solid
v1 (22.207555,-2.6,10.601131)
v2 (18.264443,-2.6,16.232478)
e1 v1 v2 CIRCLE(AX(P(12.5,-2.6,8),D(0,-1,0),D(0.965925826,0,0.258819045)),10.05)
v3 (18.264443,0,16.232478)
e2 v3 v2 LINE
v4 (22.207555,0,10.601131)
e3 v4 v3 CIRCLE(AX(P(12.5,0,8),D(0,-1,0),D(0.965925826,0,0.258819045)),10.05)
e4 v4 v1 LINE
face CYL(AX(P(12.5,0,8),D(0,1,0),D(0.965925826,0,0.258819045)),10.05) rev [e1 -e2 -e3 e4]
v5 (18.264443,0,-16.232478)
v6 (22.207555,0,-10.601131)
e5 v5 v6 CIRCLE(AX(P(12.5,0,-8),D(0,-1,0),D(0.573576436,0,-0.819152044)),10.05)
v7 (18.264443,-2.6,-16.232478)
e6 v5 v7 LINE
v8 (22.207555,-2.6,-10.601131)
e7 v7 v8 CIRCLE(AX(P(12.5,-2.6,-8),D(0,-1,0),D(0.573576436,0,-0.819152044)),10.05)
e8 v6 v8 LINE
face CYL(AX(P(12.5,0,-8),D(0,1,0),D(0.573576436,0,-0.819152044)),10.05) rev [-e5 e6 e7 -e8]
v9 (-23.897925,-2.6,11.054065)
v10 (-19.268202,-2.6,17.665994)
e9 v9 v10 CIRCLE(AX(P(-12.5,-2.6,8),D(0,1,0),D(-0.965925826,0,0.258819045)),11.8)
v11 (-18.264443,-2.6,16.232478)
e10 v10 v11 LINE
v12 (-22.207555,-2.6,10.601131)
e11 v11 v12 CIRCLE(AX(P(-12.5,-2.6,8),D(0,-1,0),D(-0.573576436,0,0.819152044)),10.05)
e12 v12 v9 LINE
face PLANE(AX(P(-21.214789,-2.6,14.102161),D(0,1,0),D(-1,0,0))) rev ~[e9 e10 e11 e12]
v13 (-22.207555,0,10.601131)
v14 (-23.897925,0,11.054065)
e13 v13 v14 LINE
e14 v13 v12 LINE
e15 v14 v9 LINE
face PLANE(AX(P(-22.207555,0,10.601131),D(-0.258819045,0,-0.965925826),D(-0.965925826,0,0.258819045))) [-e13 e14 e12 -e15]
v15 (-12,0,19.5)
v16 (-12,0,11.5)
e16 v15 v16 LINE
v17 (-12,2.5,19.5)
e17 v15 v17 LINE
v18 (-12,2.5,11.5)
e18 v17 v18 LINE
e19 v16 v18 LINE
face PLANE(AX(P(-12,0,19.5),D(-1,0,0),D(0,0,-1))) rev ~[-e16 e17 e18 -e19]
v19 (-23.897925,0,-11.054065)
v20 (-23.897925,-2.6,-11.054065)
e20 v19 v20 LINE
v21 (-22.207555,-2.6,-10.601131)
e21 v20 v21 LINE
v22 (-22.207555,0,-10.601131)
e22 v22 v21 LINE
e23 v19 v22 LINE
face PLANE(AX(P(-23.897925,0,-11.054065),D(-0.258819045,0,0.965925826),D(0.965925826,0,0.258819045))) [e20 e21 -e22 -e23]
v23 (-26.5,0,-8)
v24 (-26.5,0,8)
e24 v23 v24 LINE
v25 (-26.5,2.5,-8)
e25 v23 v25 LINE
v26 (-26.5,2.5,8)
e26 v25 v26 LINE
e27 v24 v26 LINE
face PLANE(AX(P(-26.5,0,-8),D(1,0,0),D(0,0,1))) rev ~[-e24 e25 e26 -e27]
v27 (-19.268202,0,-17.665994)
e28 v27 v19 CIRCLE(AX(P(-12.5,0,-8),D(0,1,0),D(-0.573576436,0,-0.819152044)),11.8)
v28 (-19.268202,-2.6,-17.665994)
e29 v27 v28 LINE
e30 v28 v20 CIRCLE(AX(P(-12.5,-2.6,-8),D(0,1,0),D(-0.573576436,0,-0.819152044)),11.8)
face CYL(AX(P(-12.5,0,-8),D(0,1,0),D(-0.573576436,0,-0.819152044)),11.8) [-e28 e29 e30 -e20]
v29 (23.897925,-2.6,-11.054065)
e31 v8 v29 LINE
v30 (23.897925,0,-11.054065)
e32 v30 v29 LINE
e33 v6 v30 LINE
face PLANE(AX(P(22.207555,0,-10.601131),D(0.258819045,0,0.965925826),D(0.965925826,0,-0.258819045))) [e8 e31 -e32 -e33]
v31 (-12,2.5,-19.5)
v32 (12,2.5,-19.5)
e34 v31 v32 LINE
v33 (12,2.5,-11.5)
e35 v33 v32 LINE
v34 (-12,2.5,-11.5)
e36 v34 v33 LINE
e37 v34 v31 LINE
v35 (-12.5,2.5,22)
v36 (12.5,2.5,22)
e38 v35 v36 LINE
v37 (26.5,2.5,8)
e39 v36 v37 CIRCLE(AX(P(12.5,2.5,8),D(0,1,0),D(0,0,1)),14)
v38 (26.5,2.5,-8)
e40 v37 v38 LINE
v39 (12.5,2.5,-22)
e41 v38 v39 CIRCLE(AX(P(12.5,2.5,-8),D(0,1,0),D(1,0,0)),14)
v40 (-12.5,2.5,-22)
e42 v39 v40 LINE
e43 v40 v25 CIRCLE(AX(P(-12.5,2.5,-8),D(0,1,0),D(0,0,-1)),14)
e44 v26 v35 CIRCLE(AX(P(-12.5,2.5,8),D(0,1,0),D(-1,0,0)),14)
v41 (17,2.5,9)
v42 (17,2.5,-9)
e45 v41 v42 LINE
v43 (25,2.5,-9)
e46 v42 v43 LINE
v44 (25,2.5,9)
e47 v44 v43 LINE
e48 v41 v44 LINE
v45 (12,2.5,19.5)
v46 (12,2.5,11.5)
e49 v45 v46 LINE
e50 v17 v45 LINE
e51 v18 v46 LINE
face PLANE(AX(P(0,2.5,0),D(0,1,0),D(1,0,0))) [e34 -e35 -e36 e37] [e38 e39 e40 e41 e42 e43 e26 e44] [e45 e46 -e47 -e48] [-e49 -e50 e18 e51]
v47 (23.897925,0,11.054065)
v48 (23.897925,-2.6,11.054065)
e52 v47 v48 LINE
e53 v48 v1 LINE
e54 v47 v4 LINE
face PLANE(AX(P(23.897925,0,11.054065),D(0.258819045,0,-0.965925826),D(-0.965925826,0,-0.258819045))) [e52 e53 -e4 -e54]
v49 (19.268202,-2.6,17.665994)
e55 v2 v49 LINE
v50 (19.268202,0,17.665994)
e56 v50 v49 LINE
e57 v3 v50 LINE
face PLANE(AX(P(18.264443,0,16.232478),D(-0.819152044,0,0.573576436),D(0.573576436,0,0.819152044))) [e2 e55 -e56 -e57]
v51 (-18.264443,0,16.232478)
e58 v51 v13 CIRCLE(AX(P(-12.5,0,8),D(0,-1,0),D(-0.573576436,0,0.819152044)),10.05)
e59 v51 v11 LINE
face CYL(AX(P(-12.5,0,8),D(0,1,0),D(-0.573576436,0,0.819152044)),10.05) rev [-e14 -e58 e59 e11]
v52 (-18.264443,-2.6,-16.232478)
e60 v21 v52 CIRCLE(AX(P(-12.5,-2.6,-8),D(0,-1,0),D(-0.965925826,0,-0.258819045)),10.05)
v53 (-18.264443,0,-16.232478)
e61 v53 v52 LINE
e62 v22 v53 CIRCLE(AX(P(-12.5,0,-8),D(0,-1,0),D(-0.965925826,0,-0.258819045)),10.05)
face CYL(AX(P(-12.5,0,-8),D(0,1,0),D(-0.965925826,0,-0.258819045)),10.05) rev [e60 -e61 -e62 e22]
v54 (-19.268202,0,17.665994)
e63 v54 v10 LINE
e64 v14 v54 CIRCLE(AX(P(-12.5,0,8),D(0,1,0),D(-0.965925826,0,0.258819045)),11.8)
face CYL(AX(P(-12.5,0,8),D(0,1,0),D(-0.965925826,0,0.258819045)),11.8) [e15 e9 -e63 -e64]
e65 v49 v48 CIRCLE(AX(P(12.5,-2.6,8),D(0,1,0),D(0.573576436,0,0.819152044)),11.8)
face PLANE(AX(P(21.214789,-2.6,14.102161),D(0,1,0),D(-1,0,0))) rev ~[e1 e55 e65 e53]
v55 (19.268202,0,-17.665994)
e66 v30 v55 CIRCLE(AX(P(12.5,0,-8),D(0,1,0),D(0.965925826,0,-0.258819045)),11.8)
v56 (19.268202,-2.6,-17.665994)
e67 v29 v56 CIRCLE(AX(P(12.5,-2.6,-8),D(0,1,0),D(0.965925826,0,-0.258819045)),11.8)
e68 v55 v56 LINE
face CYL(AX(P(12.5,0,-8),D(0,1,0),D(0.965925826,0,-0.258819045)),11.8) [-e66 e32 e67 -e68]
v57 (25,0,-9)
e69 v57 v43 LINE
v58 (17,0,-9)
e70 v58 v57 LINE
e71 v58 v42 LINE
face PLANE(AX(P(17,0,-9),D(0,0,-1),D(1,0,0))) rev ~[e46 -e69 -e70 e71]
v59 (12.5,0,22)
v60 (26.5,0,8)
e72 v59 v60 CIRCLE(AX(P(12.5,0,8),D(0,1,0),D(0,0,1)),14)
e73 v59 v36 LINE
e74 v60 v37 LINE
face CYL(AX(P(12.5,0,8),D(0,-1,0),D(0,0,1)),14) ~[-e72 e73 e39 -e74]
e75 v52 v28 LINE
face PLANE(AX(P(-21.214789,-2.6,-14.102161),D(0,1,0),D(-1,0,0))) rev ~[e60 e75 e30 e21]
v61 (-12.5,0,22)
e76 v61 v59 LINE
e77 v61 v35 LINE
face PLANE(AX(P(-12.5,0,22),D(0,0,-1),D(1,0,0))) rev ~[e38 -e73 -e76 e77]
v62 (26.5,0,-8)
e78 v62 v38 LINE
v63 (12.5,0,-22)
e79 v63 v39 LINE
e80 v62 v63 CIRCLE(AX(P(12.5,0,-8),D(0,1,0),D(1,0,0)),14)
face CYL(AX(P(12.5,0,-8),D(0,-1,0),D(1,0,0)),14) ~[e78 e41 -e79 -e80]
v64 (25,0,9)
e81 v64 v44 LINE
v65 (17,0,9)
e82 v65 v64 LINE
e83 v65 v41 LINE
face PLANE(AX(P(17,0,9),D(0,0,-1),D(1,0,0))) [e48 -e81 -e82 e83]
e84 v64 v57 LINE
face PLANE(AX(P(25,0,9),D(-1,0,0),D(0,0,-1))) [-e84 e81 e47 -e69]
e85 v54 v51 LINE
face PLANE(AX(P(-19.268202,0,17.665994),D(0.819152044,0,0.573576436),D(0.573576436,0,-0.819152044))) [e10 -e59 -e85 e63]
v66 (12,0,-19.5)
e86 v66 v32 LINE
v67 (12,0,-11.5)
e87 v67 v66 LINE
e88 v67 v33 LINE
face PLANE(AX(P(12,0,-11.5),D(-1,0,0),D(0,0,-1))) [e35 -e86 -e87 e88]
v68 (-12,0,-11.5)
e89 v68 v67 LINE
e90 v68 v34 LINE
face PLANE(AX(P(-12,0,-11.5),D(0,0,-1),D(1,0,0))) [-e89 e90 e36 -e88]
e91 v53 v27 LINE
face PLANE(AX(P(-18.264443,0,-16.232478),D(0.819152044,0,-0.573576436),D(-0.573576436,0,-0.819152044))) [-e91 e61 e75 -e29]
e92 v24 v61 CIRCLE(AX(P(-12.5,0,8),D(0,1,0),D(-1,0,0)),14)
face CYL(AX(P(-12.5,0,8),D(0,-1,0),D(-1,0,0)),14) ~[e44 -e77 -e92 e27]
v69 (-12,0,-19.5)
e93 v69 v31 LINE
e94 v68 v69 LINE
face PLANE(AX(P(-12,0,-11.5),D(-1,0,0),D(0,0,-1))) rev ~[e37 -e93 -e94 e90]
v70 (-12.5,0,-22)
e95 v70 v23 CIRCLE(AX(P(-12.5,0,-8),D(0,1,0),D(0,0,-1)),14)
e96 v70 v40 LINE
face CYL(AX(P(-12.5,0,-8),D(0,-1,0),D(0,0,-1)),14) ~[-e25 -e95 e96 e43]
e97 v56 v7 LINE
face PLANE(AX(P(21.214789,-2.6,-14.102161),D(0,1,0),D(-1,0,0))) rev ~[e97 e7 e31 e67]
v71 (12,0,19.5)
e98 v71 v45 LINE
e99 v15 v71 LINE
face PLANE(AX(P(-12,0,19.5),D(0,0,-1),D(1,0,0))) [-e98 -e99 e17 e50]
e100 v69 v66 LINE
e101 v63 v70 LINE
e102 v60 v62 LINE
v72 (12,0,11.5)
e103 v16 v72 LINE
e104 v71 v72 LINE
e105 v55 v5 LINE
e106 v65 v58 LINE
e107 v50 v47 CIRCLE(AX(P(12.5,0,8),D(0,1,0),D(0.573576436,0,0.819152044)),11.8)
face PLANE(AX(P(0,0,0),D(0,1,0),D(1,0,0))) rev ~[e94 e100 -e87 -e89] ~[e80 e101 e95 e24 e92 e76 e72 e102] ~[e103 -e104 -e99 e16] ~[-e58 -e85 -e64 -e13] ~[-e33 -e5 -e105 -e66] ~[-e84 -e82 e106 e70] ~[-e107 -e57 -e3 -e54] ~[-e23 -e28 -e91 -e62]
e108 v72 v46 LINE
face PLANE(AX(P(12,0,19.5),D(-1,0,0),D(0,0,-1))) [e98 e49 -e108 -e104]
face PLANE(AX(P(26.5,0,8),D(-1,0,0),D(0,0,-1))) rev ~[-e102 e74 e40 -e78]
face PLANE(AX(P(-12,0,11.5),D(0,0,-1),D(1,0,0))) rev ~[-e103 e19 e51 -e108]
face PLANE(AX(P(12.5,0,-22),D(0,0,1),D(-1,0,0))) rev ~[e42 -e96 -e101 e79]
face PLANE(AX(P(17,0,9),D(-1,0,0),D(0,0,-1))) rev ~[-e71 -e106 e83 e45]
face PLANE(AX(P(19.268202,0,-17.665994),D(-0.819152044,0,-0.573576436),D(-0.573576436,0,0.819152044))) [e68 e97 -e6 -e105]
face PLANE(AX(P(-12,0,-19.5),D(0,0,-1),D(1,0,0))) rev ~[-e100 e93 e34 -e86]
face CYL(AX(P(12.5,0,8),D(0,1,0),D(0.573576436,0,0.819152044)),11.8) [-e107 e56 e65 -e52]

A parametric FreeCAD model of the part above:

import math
import FreeCAD as App
import Part
import Sketcher
Q = App.Units.Quantity


def add_polygon(sketch, points):
    """Adds a closed chain of lines whose ends are joined by coincident constraints."""
    first, n = sketch.GeometryCount, len(points)
    for a, b in zip(points, points[1:] + points[:1]):
        sketch.addGeometry(Part.LineSegment(App.Vector(*a, 0), App.Vector(*b, 0)), False)
    for i in range(n):
        sketch.addConstraint(Sketcher.Constraint("Coincident", first + i, 2, first + (i + 1) % n, 1))

doc = App.newDocument("Part")
body = doc.addObject("PartDesign::Body", "Body")

# Sketch on XZ plane
sketch1 = body.newObject("Sketcher::SketchObject", "Sketch")
sketch1.AttachmentSupport = (doc.getObject("XZ_Plane"), [""])
sketch1.MapMode = "FlatFace"
sketch1.addGeometry(Part.LineSegment(App.Vector(-26.5, -8, 0), App.Vector(-26.5, 8, 0)), False)  # 0
sketch1.addGeometry(Part.ArcOfCircle(Part.Circle(App.Vector(-12.5, 8, 0), App.Vector(0, 0, 1), 14), math.radians(90), math.radians(180)), False)  # 1
sketch1.addGeometry(Part.LineSegment(App.Vector(-12.5, 22, 0), App.Vector(12.5, 22, 0)), False)  # 2
sketch1.addGeometry(Part.ArcOfCircle(Part.Circle(App.Vector(12.5, 8, 0), App.Vector(0, 0, 1), 14), math.radians(0), math.radians(90)), False)  # 3
sketch1.addGeometry(Part.LineSegment(App.Vector(26.5, 8, 0), App.Vector(26.5, -8, 0)), False)  # 4
sketch1.addGeometry(Part.ArcOfCircle(Part.Circle(App.Vector(12.5, -8, 0), App.Vector(0, 0, 1), 14), math.radians(-90), math.radians(0)), False)  # 5
sketch1.addGeometry(Part.LineSegment(App.Vector(12.5, -22, 0), App.Vector(-12.5, -22, 0)), False)  # 6
sketch1.addGeometry(Part.ArcOfCircle(Part.Circle(App.Vector(-12.5, -8, 0), App.Vector(0, 0, 1), 14), math.radians(180), math.radians(270)), False)  # 7
add_polygon(sketch1, [(12, 19.5), (-12, 19.5), (-12, 11.5), (12, 11.5)])  # lines 8-11
add_polygon(sketch1, [(12, -11.5), (-12, -11.5), (-12, -19.5), (12, -19.5)])  # lines 12-15
add_polygon(sketch1, [(25, 9), (17, 9), (17, -9), (25, -9)])  # lines 16-19
sketch1.addConstraint([
    Sketcher.Constraint("Tangent", 0, 2, 1, 2),
    Sketcher.Constraint("Tangent", 1, 1, 2, 1),
    Sketcher.Constraint("Tangent", 2, 2, 3, 2),
    Sketcher.Constraint("Tangent", 3, 1, 4, 1),
    Sketcher.Constraint("Tangent", 4, 2, 5, 2),
    Sketcher.Constraint("Tangent", 5, 1, 6, 1),
    Sketcher.Constraint("Tangent", 6, 2, 7, 2),
    Sketcher.Constraint("Tangent", 7, 1, 0, 1),
    Sketcher.Constraint("Vertical", 0),
    Sketcher.Constraint("Horizontal", 2),
    Sketcher.Constraint("Vertical", 4),
    Sketcher.Constraint("Horizontal", 6),
    Sketcher.Constraint("Horizontal", 8),
    Sketcher.Constraint("Vertical", 9),
    Sketcher.Constraint("Horizontal", 10),
    Sketcher.Constraint("Vertical", 11),
    Sketcher.Constraint("Horizontal", 12),
    Sketcher.Constraint("Vertical", 13),
    Sketcher.Constraint("Horizontal", 14),
    Sketcher.Constraint("Vertical", 15),
    Sketcher.Constraint("Horizontal", 16),
    Sketcher.Constraint("Vertical", 17),
    Sketcher.Constraint("Horizontal", 18),
    Sketcher.Constraint("Vertical", 19),
    Sketcher.Constraint("Equal", 1, 3),
    Sketcher.Constraint("Equal", 3, 5),
    Sketcher.Constraint("Equal", 5, 7),
    Sketcher.Constraint("Symmetric", 1, 3, 5, 3, -1, 1),
    Sketcher.Constraint("Symmetric", 10, 2, 12, 2, -1, 1),
    Sketcher.Constraint("Symmetric", 8, 2, 14, 2, -1, 1),
    Sketcher.Constraint("Vertical", 9, 2, 12, 2),
    Sketcher.Constraint("Equal", 18, 9),
    Sketcher.Constraint("Radius", 1, Q("14 mm")),
    Sketcher.Constraint("DistanceX", 2, 1, 2, 2, Q("25 mm")),
    Sketcher.Constraint("DistanceX", 8, 2, 8, 1, Q("24 mm")),
    Sketcher.Constraint("DistanceX", 16, 2, 16, 1, Q("8 mm")),
    Sketcher.Constraint("DistanceY", 0, 1, 0, 2, Q("16 mm")),
    Sketcher.Constraint("DistanceY", 17, 2, 17, 1, Q("18 mm")),
    Sketcher.Constraint("DistanceX", -1, 1, 16, 2, Q("17 mm")),
    Sketcher.Constraint("DistanceY", -1, 1, 16, 2, Q("9 mm")),
    Sketcher.Constraint("DistanceY", 12, 2, 9, 2, Q("23 mm")),
])
pad1 = body.newObject("PartDesign::Pad", "Pad")
pad1.Profile = sketch1
pad1.Length = 2.5
pad1.Reversed = True

# Sketch on XZ plane
sketch2 = body.newObject("Sketcher::SketchObject", "Sketch001")
sketch2.AttachmentSupport = (doc.getObject("XZ_Plane"), [""])
sketch2.MapMode = "FlatFace"
sketch2.addGeometry([
    Part.ArcOfCircle(Part.Circle(App.Vector(12.5, -8, 0), App.Vector(0, 0, 1), 10.05), math.radians(-55), math.radians(-15)),  # 0
    Part.LineSegment(App.Vector(18.264443, -16.232478, 0), App.Vector(19.268202, -17.665994, 0)),  # 1
    Part.ArcOfCircle(Part.Circle(App.Vector(12.5, -8, 0), App.Vector(0, 0, 1), 11.8), math.radians(-55), math.radians(-15)),  # 2
    Part.LineSegment(App.Vector(23.897925, -11.054065, 0), App.Vector(22.207555, -10.601131, 0)),  # 3
    Part.ArcOfCircle(Part.Circle(App.Vector(12.5, 8, 0), App.Vector(0, 0, 1), 11.8), math.radians(15), math.radians(55)),  # 4
    Part.LineSegment(App.Vector(19.268202, 17.665994, 0), App.Vector(18.264443, 16.232478, 0)),  # 5
    Part.ArcOfCircle(Part.Circle(App.Vector(12.5, 8, 0), App.Vector(0, 0, 1), 10.05), math.radians(15), math.radians(55)),  # 6
    Part.LineSegment(App.Vector(22.207555, 10.601131, 0), App.Vector(23.897925, 11.054065, 0)),  # 7
    Part.LineSegment(App.Vector(-19.268202, -17.665994, 0), App.Vector(-18.264443, -16.232478, 0)),  # 8
    Part.ArcOfCircle(Part.Circle(App.Vector(-12.5, -8, 0), App.Vector(0, 0, 1), 10.05), math.radians(-165), math.radians(-125)),  # 9
    Part.LineSegment(App.Vector(-22.207555, -10.601131, 0), App.Vector(-23.897925, -11.054065, 0)),  # 10
    Part.ArcOfCircle(Part.Circle(App.Vector(-12.5, -8, 0), App.Vector(0, 0, 1), 11.8), math.radians(-165), math.radians(-125)),  # 11
    Part.ArcOfCircle(Part.Circle(App.Vector(-12.5, 8, 0), App.Vector(0, 0, 1), 10.05), math.radians(125), math.radians(165)),  # 12
    Part.LineSegment(App.Vector(-18.264443, 16.232478, 0), App.Vector(-19.268202, 17.665994, 0)),  # 13
    Part.ArcOfCircle(Part.Circle(App.Vector(-12.5, 8, 0), App.Vector(0, 0, 1), 11.8), math.radians(125), math.radians(165)),  # 14
    Part.LineSegment(App.Vector(-23.897925, 11.054065, 0), App.Vector(-22.207555, 10.601131, 0)),  # 15
], False)
sketch2.addConstraint([
    Sketcher.Constraint("Coincident", 0, 1, 1, 1),
    Sketcher.Constraint("Coincident", 1, 2, 2, 1),
    Sketcher.Constraint("Coincident", 2, 2, 3, 1),
    Sketcher.Constraint("Coincident", 3, 2, 0, 2),
    Sketcher.Constraint("Coincident", 4, 2, 5, 1),
    Sketcher.Constraint("Coincident", 5, 2, 6, 2),
    Sketcher.Constraint("Coincident", 6, 1, 7, 1),
    Sketcher.Constraint("Coincident", 7, 2, 4, 1),
    Sketcher.Constraint("Coincident", 8, 2, 9, 2),
    Sketcher.Constraint("Coincident", 9, 1, 10, 1),
    Sketcher.Constraint("Coincident", 10, 2, 11, 1),
    Sketcher.Constraint("Coincident", 11, 2, 8, 1),
    Sketcher.Constraint("Coincident", 12, 1, 13, 1),
    Sketcher.Constraint("Coincident", 13, 2, 14, 1),
    Sketcher.Constraint("Coincident", 14, 2, 15, 1),
    Sketcher.Constraint("Coincident", 15, 2, 12, 2),
    Sketcher.Constraint("Coincident", 2, 3, 0, 3),
    Sketcher.Constraint("Coincident", 6, 3, 4, 3),
    Sketcher.Constraint("Coincident", 11, 3, 9, 3),
    Sketcher.Constraint("Coincident", 14, 3, 12, 3),
    Sketcher.Constraint("Equal", 2, 4),
    Sketcher.Constraint("Equal", 0, 6),
    Sketcher.Constraint("Equal", 6, 9),
    Sketcher.Constraint("Equal", 4, 11),
    Sketcher.Constraint("Equal", 9, 12),
    Sketcher.Constraint("Equal", 11, 14),
    Sketcher.Constraint("Symmetric", 4, 3, 9, 3, -1, 1),
    Sketcher.Constraint("Symmetric", 0, 3, 12, 3, -1, 1),
    Sketcher.Constraint("Symmetric", 0, 3, 9, 3, -2),
    Sketcher.Constraint("Parallel", 5, 8),
    Sketcher.Constraint("Parallel", 7, 10),
    Sketcher.Constraint("Parallel", 1, 13),
    Sketcher.Constraint("Parallel", 3, 15),
    Sketcher.Constraint("Horizontal", 0, 1, 8, 2),
    Sketcher.Constraint("Horizontal", 3, 2, 9, 1),
    Sketcher.Constraint("Horizontal", 2, 2, 10, 2),
    Sketcher.Constraint("Horizontal", 1, 2, 11, 2),
    Sketcher.Constraint("Horizontal", 5, 2, 12, 1),
    Sketcher.Constraint("Horizontal", 7, 2, 14, 2),
    Sketcher.Constraint("Vertical", 1, 2, 4, 2),
    Sketcher.Constraint("Vertical", 3, 2, 6, 1),
    Sketcher.Constraint("Radius", 2, Q("11.8 mm")),
    Sketcher.Constraint("Angle", 1, Q("-55 deg")),
    Sketcher.Constraint("Angle", 3, Q("165 deg")),
    Sketcher.Constraint("Radius", 0, Q("10.05 mm")),
    Sketcher.Constraint("DistanceY", 0, 3, -1, 1, Q("8 mm")),
    Sketcher.Constraint("DistanceX", 9, 3, 0, 3, Q("25 mm")),
    Sketcher.Constraint("DistanceX", -1, 1, 1, 2, Q("19.268202 mm")),
    Sketcher.Constraint("DistanceY", 3, 2, -1, 1, Q("10.601131 mm")),
])
pad2 = body.newObject("PartDesign::Pad", "Pad001")
pad2.Profile = sketch2
pad2.Length = 2.6

doc.recompute()
